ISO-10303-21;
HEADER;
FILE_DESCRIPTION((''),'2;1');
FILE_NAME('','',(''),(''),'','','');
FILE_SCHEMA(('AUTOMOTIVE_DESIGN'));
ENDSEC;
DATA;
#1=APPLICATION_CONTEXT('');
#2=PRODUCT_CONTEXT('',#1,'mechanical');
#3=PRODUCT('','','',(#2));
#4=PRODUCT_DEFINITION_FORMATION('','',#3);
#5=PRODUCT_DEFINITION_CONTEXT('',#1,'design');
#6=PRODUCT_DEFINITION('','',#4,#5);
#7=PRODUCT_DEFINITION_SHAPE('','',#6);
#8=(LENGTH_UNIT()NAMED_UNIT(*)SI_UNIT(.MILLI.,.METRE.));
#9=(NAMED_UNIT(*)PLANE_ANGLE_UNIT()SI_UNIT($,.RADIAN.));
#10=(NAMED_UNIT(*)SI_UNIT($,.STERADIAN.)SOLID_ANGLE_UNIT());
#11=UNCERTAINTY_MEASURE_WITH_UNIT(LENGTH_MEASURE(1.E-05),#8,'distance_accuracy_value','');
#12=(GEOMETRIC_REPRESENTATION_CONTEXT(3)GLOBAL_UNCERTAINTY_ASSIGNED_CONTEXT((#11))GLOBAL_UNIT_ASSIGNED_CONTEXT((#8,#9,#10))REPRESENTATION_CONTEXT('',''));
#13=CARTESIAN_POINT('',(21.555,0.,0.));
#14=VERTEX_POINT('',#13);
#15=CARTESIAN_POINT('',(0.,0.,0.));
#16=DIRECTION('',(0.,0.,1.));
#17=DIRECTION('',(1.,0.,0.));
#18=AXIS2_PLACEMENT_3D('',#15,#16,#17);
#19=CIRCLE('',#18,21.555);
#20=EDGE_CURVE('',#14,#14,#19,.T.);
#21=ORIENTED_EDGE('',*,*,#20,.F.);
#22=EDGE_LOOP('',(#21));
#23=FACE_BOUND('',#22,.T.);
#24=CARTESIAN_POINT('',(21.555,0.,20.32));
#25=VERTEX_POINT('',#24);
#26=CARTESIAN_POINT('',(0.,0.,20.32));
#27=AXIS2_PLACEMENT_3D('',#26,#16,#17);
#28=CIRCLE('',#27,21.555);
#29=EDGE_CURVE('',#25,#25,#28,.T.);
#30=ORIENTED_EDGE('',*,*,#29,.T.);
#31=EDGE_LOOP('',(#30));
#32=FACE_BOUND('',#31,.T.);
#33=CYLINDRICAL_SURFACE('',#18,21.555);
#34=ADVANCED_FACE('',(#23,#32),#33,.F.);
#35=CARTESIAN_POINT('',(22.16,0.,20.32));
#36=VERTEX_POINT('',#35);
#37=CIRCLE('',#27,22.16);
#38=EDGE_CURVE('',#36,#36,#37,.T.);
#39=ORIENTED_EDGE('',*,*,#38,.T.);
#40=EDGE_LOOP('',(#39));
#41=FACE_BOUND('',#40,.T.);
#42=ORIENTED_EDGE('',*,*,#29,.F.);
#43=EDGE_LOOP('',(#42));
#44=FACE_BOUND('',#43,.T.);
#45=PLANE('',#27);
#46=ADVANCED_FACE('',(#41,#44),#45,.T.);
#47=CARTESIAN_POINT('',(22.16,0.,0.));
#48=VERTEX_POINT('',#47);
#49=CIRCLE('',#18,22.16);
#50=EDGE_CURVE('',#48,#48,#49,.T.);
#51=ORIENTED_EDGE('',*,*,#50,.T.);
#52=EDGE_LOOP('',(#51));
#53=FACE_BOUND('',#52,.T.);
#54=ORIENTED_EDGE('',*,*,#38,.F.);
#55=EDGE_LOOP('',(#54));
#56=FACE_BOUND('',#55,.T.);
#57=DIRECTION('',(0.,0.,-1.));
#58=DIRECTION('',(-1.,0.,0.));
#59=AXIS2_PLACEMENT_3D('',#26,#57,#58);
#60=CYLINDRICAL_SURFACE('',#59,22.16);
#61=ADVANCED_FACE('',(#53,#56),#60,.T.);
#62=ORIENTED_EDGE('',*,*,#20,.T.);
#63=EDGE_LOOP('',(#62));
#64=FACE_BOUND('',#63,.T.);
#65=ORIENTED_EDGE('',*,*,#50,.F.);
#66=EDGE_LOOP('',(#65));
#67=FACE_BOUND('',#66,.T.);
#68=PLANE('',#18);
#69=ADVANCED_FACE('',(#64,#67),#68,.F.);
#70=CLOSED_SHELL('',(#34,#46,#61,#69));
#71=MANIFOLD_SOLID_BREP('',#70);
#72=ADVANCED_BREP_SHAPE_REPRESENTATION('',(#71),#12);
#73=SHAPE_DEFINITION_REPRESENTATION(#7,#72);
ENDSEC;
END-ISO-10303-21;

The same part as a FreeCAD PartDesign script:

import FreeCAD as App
import Part
import Sketcher
Q = App.Units.Quantity

doc = App.newDocument("Part")
params = doc.addObject("Spreadsheet::Sheet", "Params")
for row, (alias, value) in enumerate([
    ("pad1_length", "0.8 in"),
    ("pocket1_length", "0.8 in"),
], start=1):
    params.set(f"A{row}", alias)
    params.set(f"B{row}", "=" + value)
    params.setAlias(f"B{row}", alias)

body = doc.addObject("PartDesign::Body", "Body")

sketch1 = body.newObject("Sketcher::SketchObject", "Sketch")
sketch1.AttachmentSupport = (doc.getObject("XY_Plane"), [""])
sketch1.MapMode = "FlatFace"
sketch1.addGeometry(Part.Circle(App.Vector(0, 0, 0), App.Vector(0, 0, 1), 22.16), False)
sketch1.addConstraint(Sketcher.Constraint("Coincident", 0, 3, -1, 1))
sketch1.addConstraint(Sketcher.Constraint("Diameter", 0, Q("44.32 mm")))
pad1 = body.newObject("PartDesign::Pad", "Pad")
pad1.Profile = sketch1
pad1.setExpression("Length", "Params.pad1_length")

sketch2 = body.newObject("Sketcher::SketchObject", "Sketch001")
sketch2.AttachmentSupport = (doc.getObject("XY_Plane"), [""])
sketch2.MapMode = "FlatFace"
sketch2.AttachmentOffset = App.Placement(App.Vector(0, 0, 0.8 * 25.4), App.Rotation())
sketch2.addGeometry(Part.Circle(App.Vector(0, 0, 0), App.Vector(0, 0, 1), 21.555), False)
sketch2.addConstraint(Sketcher.Constraint("Coincident", 0, 3, -1, 1))
sketch2.addConstraint(Sketcher.Constraint("Diameter", 0, Q("43.11 mm")))
pocket1 = body.newObject("PartDesign::Pocket", "Pocket")
pocket1.Profile = sketch2
pocket1.setExpression("Length", "Params.pocket1_length")

doc.recompute()
